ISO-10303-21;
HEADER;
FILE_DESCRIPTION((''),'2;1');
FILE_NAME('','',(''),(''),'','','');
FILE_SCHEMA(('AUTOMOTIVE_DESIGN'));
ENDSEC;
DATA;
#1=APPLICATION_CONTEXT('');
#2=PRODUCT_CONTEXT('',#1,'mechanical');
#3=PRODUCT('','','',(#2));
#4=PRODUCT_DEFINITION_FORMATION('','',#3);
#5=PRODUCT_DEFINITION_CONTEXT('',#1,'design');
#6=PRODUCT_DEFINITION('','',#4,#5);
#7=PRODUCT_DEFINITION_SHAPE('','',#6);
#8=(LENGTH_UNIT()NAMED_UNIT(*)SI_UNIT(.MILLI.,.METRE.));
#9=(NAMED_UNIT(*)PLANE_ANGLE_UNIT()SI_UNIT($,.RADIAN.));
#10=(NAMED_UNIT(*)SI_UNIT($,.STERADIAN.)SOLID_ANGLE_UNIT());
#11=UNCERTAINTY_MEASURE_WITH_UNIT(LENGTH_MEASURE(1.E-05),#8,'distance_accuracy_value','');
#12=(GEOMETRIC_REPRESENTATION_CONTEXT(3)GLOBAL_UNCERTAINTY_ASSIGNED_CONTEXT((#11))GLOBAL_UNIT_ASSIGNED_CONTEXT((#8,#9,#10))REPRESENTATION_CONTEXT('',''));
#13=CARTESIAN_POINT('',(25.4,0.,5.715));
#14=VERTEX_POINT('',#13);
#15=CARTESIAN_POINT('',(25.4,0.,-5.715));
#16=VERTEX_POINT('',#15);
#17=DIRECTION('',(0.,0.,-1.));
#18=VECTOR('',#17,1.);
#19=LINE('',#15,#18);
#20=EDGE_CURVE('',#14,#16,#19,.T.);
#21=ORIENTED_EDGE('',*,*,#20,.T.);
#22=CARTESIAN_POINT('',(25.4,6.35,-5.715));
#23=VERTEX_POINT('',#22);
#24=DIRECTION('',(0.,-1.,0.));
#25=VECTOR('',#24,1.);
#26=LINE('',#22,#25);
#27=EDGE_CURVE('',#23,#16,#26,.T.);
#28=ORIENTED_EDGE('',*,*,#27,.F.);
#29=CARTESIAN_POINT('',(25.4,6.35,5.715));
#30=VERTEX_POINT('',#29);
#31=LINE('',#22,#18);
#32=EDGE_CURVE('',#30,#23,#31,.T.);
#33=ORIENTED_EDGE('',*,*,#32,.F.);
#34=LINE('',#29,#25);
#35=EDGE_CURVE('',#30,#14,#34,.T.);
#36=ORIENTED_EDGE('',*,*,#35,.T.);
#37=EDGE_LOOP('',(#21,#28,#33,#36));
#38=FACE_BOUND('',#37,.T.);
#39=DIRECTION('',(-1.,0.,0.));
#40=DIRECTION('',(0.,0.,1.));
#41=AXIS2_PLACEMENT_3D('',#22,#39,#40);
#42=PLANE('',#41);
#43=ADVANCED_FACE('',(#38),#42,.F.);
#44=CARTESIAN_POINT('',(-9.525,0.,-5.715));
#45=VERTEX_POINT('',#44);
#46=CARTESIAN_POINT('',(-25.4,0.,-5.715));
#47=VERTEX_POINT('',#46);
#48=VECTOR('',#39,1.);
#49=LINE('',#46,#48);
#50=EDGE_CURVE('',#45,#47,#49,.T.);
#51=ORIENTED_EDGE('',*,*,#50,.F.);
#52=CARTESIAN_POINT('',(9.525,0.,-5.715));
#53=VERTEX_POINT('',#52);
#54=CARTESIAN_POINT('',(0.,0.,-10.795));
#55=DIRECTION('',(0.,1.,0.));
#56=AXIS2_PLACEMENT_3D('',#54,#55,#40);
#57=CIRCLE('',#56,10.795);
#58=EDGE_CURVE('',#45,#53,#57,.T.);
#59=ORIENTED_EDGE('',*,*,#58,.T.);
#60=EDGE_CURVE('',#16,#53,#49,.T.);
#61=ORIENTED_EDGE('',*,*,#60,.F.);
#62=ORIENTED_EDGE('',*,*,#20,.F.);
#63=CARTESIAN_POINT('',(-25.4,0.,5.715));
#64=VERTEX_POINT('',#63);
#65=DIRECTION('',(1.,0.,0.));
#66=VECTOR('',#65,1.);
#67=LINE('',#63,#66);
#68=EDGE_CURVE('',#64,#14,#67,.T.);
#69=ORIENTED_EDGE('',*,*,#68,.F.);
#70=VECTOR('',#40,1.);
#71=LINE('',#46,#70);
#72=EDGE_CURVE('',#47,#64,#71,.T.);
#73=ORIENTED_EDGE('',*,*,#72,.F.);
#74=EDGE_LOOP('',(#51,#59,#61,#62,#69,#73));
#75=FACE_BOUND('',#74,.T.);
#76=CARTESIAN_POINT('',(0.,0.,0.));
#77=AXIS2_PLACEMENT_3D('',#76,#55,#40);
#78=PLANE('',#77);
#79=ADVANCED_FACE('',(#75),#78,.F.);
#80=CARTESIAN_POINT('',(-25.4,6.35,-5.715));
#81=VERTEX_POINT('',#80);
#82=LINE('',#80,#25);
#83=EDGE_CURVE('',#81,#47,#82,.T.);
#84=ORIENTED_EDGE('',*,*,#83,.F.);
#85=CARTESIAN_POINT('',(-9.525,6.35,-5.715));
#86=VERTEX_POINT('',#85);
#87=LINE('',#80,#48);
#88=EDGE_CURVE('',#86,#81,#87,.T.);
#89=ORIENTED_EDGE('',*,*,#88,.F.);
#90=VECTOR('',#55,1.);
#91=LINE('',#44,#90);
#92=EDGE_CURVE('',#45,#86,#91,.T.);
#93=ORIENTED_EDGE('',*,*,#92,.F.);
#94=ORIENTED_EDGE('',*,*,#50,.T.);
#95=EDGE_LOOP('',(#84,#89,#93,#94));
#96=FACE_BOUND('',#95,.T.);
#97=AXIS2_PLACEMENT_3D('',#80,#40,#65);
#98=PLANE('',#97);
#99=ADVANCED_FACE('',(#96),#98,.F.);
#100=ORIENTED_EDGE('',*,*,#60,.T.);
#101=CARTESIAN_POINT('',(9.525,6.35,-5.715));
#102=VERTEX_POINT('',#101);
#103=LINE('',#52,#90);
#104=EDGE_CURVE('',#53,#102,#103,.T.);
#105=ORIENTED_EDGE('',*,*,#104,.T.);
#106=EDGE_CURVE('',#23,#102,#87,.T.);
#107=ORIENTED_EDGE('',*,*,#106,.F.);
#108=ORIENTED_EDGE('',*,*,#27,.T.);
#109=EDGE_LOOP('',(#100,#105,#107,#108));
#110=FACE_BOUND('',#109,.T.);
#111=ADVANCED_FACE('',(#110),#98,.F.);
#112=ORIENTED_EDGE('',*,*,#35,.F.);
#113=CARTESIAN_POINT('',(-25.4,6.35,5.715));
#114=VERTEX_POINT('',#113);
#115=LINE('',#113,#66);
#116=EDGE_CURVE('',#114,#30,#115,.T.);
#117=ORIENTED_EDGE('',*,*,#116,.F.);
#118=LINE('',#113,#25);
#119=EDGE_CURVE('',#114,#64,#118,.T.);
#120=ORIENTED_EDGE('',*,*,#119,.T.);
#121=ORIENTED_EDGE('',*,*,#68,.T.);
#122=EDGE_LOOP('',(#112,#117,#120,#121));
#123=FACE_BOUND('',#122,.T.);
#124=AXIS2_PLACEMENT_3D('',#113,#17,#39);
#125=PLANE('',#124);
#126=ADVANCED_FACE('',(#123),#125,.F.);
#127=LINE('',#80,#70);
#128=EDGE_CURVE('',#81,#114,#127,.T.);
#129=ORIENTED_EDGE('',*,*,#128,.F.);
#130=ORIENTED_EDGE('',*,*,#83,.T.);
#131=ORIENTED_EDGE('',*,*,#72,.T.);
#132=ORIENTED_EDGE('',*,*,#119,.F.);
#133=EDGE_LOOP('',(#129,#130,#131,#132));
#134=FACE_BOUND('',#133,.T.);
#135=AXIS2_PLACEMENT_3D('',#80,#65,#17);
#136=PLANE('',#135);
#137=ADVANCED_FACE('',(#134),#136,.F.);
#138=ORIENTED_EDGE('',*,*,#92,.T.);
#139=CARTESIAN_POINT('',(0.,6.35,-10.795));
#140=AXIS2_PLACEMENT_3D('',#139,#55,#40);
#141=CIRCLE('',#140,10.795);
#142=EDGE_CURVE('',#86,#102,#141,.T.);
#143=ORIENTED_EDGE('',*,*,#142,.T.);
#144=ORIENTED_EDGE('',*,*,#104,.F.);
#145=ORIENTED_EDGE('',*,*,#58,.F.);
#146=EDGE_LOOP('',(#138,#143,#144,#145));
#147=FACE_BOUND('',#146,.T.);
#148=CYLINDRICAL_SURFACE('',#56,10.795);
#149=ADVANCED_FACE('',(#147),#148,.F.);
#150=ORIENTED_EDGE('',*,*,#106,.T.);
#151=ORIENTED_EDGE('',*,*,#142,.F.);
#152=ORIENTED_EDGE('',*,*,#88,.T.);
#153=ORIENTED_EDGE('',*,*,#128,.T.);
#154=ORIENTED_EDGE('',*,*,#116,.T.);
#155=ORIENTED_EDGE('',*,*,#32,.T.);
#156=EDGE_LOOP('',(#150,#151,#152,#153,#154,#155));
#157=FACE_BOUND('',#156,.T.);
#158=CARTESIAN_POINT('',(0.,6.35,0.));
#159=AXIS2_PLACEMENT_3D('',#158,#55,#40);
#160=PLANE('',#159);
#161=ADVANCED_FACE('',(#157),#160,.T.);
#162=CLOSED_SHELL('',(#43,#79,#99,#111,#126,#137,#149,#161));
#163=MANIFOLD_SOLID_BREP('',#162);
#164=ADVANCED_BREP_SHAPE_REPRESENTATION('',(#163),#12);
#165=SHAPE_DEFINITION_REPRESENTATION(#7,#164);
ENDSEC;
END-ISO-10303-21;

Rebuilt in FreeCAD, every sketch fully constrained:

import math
import FreeCAD as App
import Part
import Sketcher
Q = App.Units.Quantity

doc = App.newDocument("Part")
body = doc.addObject("PartDesign::Body", "Body")

# Sketch on XZ plane
sketch1 = doc.addObject("Sketcher::SketchObject", "Sketch")
body.addObject(sketch1)
sketch1.AttachmentSupport = (doc.XZ_Plane, [""])
sketch1.MapMode = "FlatFace"
sketch1.addGeometry(Part.LineSegment(App.Vector(-25, -6, 0), App.Vector(-25, 6, 0)), False)
sketch1.addGeometry(Part.LineSegment(App.Vector(-25, 6, 0), App.Vector(25, 6, 0)), False)
sketch1.addGeometry(Part.LineSegment(App.Vector(25, 6, 0), App.Vector(25, -6, 0)), False)
sketch1.addGeometry(Part.LineSegment(App.Vector(25, -6, 0), App.Vector(-25, -6, 0)), False)
sketch1.addConstraint(Sketcher.Constraint("Coincident", 0, 2, 1, 1))
sketch1.addConstraint(Sketcher.Constraint("Coincident", 1, 2, 2, 1))
sketch1.addConstraint(Sketcher.Constraint("Coincident", 2, 2, 3, 1))
sketch1.addConstraint(Sketcher.Constraint("Coincident", 3, 2, 0, 1))
sketch1.addConstraint(Sketcher.Constraint("Vertical", 0))
sketch1.addConstraint(Sketcher.Constraint("Horizontal", 1))
sketch1.addConstraint(Sketcher.Constraint("Vertical", 2))
sketch1.addConstraint(Sketcher.Constraint("Horizontal", 3))
sketch1.addConstraint(Sketcher.Constraint("Symmetric", 0, 2, 2, 2, -1, 1))
sketch1.addConstraint(Sketcher.Constraint("DistanceX", 1, 1, 1, 2, Q("2 in")))
sketch1.addConstraint(Sketcher.Constraint("DistanceY", 0, 1, 0, 2, Q("0.45 in")))
pad1 = doc.addObject("PartDesign::Pad", "Pad")
body.addObject(pad1)
pad1.Profile = sketch1
pad1.Length = Q("0.25 in")
pad1.Reversed = True

# Sketch on XZ plane
sketch2 = doc.addObject("Sketcher::SketchObject", "Sketch001")
body.addObject(sketch2)
sketch2.AttachmentSupport = (doc.XZ_Plane, [""])
sketch2.MapMode = "FlatFace"
sketch2.AttachmentOffset = App.Placement(App.Vector(0, 0, -0.25 * 25.4), App.Rotation())
sketch2.addGeometry(Part.LineSegment(App.Vector(10, -6, 0), App.Vector(-10, -6, 0)), False)
sketch2.addGeometry(Part.ArcOfCircle(Part.Circle(App.Vector(0, -11, 0), App.Vector(0, 0, 1), 11), math.radians(28), math.radians(152)), False)
sketch2.addConstraint(Sketcher.Constraint("Coincident", 0, 1, 1, 1))
sketch2.addConstraint(Sketcher.Constraint("Coincident", 1, 2, 0, 2))
sketch2.addConstraint(Sketcher.Constraint("Horizontal", 0))
sketch2.addConstraint(Sketcher.Constraint("PointOnObject", 1, 3, -2))
sketch2.addConstraint(Sketcher.Constraint("Radius", 1, Q("0.425 in")))
sketch2.addConstraint(Sketcher.Constraint("DistanceX", 0, 2, 0, 1, Q("0.75 in")))
sketch2.addConstraint(Sketcher.Constraint("DistanceY", 1, 3, -1, 1, Q("0.425 in")))
pocket1 = doc.addObject("PartDesign::Pocket", "Pocket")
body.addObject(pocket1)
pocket1.Profile = sketch2
pocket1.Type = "ThroughAll"
pocket1.Reversed = True

doc.recompute()
